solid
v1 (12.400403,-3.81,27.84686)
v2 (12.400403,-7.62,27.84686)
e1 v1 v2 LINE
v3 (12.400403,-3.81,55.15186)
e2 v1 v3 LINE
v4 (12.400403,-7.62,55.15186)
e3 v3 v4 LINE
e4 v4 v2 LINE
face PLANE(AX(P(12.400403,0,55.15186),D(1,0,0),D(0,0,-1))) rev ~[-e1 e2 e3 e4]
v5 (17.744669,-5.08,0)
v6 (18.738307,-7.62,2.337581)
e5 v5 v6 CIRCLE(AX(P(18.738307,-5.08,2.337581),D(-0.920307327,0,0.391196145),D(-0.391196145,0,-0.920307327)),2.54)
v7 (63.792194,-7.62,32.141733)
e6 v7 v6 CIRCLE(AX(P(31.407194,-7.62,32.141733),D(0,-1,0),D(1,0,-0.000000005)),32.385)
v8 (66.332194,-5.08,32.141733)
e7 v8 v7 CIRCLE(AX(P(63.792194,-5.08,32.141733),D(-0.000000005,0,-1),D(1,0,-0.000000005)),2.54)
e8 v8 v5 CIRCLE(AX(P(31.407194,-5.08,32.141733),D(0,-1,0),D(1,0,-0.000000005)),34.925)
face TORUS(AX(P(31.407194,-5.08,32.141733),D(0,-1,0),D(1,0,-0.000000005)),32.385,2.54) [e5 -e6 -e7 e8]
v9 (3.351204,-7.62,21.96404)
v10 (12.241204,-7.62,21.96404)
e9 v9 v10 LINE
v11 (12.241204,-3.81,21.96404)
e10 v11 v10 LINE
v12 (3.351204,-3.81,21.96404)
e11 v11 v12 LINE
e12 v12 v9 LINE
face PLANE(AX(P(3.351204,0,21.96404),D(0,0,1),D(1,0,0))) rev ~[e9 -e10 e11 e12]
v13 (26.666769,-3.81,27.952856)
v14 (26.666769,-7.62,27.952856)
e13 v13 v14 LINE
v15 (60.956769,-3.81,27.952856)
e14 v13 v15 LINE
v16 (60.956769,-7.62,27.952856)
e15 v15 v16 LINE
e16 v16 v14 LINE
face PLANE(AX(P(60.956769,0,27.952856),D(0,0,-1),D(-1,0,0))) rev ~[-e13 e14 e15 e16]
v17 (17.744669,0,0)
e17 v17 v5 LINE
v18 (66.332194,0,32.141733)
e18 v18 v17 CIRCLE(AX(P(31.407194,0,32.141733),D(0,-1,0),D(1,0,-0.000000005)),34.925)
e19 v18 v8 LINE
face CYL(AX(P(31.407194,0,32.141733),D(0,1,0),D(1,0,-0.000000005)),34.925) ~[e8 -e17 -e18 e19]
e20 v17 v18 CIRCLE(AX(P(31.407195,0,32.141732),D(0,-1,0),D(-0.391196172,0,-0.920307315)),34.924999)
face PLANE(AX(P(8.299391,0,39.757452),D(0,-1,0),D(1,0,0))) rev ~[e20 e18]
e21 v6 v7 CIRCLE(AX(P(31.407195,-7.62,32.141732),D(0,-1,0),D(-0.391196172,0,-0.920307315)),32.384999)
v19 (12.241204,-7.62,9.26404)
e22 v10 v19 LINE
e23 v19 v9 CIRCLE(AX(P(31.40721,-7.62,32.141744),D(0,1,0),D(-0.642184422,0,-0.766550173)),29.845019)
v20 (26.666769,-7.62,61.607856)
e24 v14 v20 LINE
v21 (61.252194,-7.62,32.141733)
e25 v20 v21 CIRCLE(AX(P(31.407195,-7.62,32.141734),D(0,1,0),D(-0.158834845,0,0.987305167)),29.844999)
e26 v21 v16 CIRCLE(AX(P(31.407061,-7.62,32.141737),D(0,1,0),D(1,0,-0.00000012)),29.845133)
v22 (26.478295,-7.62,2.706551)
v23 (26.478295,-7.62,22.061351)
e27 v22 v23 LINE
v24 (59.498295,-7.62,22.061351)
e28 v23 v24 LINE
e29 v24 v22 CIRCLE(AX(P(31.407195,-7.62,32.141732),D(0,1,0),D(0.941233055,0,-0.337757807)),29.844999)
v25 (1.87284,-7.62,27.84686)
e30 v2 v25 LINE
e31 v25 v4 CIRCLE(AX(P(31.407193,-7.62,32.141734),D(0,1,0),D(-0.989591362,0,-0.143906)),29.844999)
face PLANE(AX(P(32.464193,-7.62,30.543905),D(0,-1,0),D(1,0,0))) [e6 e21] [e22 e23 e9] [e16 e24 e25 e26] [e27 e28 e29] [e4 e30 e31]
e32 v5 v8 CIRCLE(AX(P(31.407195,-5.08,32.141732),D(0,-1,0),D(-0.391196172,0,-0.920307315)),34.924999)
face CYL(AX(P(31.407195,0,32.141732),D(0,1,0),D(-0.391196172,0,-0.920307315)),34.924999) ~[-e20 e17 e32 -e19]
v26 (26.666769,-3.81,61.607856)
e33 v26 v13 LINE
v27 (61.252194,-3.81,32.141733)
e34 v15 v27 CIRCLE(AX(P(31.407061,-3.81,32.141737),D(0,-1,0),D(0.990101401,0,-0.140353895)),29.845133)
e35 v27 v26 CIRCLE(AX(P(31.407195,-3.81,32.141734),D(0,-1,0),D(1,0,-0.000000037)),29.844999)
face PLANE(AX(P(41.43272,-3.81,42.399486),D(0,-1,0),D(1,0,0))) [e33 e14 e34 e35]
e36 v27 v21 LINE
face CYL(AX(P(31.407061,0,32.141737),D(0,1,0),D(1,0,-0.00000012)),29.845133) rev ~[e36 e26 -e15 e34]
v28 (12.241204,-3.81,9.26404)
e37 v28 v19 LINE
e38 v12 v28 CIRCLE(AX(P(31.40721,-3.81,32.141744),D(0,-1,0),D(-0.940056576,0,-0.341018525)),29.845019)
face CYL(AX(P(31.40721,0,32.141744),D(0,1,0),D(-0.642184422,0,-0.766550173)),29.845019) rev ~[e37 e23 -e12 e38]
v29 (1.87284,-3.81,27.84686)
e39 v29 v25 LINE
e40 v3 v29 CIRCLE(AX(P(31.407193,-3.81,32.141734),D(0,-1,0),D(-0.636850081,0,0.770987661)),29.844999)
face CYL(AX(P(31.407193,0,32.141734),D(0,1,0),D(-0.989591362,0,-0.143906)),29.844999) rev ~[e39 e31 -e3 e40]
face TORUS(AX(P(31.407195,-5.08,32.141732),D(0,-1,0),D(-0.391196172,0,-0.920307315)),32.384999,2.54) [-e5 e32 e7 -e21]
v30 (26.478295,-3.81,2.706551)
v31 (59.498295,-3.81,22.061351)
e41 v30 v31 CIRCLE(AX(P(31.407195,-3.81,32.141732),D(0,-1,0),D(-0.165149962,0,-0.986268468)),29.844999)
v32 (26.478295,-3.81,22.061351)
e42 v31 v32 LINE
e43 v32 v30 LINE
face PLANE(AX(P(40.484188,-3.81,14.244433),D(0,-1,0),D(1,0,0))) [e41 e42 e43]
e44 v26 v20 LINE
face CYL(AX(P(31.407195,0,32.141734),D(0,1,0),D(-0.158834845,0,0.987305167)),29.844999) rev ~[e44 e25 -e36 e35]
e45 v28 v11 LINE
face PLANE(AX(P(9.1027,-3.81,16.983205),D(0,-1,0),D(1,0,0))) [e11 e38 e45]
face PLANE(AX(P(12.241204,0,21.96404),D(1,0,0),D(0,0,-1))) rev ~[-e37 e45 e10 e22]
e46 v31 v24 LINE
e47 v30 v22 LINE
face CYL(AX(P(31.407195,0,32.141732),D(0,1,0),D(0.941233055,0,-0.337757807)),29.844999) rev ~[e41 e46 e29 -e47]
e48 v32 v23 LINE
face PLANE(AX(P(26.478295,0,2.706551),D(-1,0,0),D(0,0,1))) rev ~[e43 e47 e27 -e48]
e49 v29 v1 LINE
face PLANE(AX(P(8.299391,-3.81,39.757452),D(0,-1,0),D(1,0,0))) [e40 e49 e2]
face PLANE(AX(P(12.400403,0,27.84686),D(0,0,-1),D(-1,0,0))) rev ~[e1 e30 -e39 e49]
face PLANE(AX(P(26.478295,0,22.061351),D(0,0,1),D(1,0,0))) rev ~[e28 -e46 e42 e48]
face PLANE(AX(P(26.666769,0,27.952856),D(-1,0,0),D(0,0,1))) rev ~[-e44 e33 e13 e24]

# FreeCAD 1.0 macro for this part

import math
import FreeCAD as App
import Part
import Sketcher
from FreeCAD import Vector
Q = App.Units.Quantity


def edges_at(feature, points):
    """Names of the edges that pass closest to the given points."""
    edges = feature.Shape.Edges
    near = lambda p: min(range(len(edges)), key=lambda i: edges[i].distToShape(Part.Vertex(*p))[0])
    return sorted({f"Edge{near(p) + 1}" for p in points})

doc = App.newDocument("Part")
body = doc.addObject("PartDesign::Body", "Body")

# Sketch on XZ plane
sketch1 = body.newObject("Sketcher::SketchObject", "Sketch")
sketch1.AttachmentSupport = (doc.getObject("XZ_Plane"), [""])
sketch1.MapMode = "FlatFace"
sketch1.addGeometry([
    Part.ArcOfCircle(Part.Circle(Vector(31.4, 32.1, 0), Vector(0, 0, 1), 34.9), math.radians(-113), math.radians(0)),  # 0
    Part.ArcOfCircle(Part.Circle(Vector(31.4, 32.1, 0), Vector(0, 0, 1), 34.9), math.radians(0), math.radians(247)),  # 1
    Part.ArcOfCircle(Part.Circle(Vector(31.4, 32.1, 0), Vector(0, 0, 1), 29.8), math.radians(130), math.radians(188)),  # 2
    Part.LineSegment(Vector(12.4, 55.2, 0), Vector(12.4, 27.8, 0)),  # 3
    Part.LineSegment(Vector(12.4, 27.8, 0), Vector(1.9, 27.8, 0)),  # 4
    Part.ArcOfCircle(Part.Circle(Vector(31.4, 32.1, 0), Vector(0, 0, 1), 29.8), math.radians(-160), math.radians(-130)),  # 5
    Part.LineSegment(Vector(3.4, 22, 0), Vector(12.2, 22, 0)),  # 6
    Part.LineSegment(Vector(12.2, 22, 0), Vector(12.2, 9.3, 0)),  # 7
    Part.ArcOfCircle(Part.Circle(Vector(31.4, 32.1, 0), Vector(0, 0, 1), 29.8), math.radians(-100), math.radians(-20)),  # 8
    Part.LineSegment(Vector(26.5, 2.7, 0), Vector(26.5, 22.1, 0)),  # 9
    Part.LineSegment(Vector(26.5, 22.1, 0), Vector(59.5, 22.1, 0)),  # 10
    Part.ArcOfCircle(Part.Circle(Vector(31.4, 32.1, 0), Vector(0, 0, 1), 29.8), math.radians(-8.07), math.radians(0)),  # 11
    Part.LineSegment(Vector(61, 28, 0), Vector(26.7, 28, 0)),  # 12
    Part.LineSegment(Vector(26.7, 28, 0), Vector(26.7, 61.6, 0)),  # 13
    Part.ArcOfCircle(Part.Circle(Vector(31.4, 32.1, 0), Vector(0, 0, 1), 29.8), math.radians(0), math.radians(99)),  # 14
], False)
sketch1.addConstraint([
    Sketcher.Constraint("Tangent", 0, 1, 1, 2),
    Sketcher.Constraint("Coincident", 1, 1, 0, 2),
    Sketcher.Constraint("Coincident", 2, 1, 3, 1),
    Sketcher.Constraint("Coincident", 3, 2, 4, 1),
    Sketcher.Constraint("Coincident", 4, 2, 2, 2),
    Sketcher.Constraint("Coincident", 5, 1, 6, 1),
    Sketcher.Constraint("Coincident", 6, 2, 7, 1),
    Sketcher.Constraint("Coincident", 7, 2, 5, 2),
    Sketcher.Constraint("Coincident", 8, 1, 9, 1),
    Sketcher.Constraint("Coincident", 9, 2, 10, 1),
    Sketcher.Constraint("Coincident", 10, 2, 8, 2),
    Sketcher.Constraint("Coincident", 11, 1, 12, 1),
    Sketcher.Constraint("Coincident", 12, 2, 13, 1),
    Sketcher.Constraint("Coincident", 13, 2, 14, 2),
    Sketcher.Constraint("Tangent", 14, 1, 11, 2),
    Sketcher.Constraint("Vertical", 3),
    Sketcher.Constraint("Horizontal", 4),
    Sketcher.Constraint("Horizontal", 6),
    Sketcher.Constraint("Vertical", 7),
    Sketcher.Constraint("Vertical", 9),
    Sketcher.Constraint("Horizontal", 10),
    Sketcher.Constraint("Horizontal", 12),
    Sketcher.Constraint("Vertical", 13),
    Sketcher.Constraint("Coincident", 2, 3, 0, 3),
    Sketcher.Constraint("Coincident", 8, 3, 0, 3),
    Sketcher.Constraint("Coincident", 14, 3, 0, 3),
    Sketcher.Constraint("Equal", 2, 8),
    Sketcher.Constraint("Equal", 8, 14),
    Sketcher.Constraint("PointOnObject", 0, 1, -1),
    Sketcher.Constraint("Horizontal", 14, 3, 1, 1),
    Sketcher.Constraint("Horizontal", 1, 1, 14, 1),
    Sketcher.Constraint("DistanceX", 10, 1, 10, 2, Q("1.3 in")),
    Sketcher.Constraint("DistanceY", 7, 2, 7, 1, Q("0.5 in")),
    Sketcher.Constraint("Radius", 0, Q("1.375 in")),
    Sketcher.Constraint("Radius", 2, Q("1.1749999 in")),
    Sketcher.Constraint("DistanceX", 6, 1, 6, 2, Q("0.35 in")),
    Sketcher.Constraint("DistanceX", 12, 2, 12, 1, Q("1.35 in")),
    Sketcher.Constraint("DistanceY", 3, 2, 3, 1, Q("1.075 in")),
    Sketcher.Constraint("DistanceY", 9, 1, 9, 2, Q("0.762 in")),
    Sketcher.Constraint("DistanceY", 13, 1, 13, 2, Q("1.325 in")),
    Sketcher.Constraint("Radius", 5, 29.845019),
    Sketcher.Constraint("Radius", 11, 29.845133),
    Sketcher.Constraint("DistanceX", 5, 1, 3, 2, 9.049199),
    Sketcher.Constraint("DistanceX", 4, 2, 4, 1, 10.527563),
    Sketcher.Constraint("DistanceX", -1, 1, 5, 3, 31.40721),
    Sketcher.Constraint("DistanceX", -1, 1, 0, 1, 17.744669),
    Sketcher.Constraint("DistanceY", -1, 1, 5, 1, 21.96404),
])
pad1 = body.newObject("PartDesign::Pad", "Pad")
pad1.Profile = sketch1
pad1.Length = Q("0.3 in")

# Sketch on XZ plane
sketch2 = body.newObject("Sketcher::SketchObject", "Sketch001")
sketch2.AttachmentSupport = (doc.getObject("XZ_Plane"), [""])
sketch2.MapMode = "FlatFace"
sketch2.addGeometry([
    Part.LineSegment(Vector(12.4, 27.8, 0), Vector(12.4, 55.2, 0)),  # 0
    Part.ArcOfCircle(Part.Circle(Vector(31.4, 32.1, 0), Vector(0, 0, 1), 29.8), math.radians(130), math.radians(188)),  # 1
    Part.LineSegment(Vector(1.9, 27.8, 0), Vector(12.4, 27.8, 0)),  # 2
    Part.ArcOfCircle(Part.Circle(Vector(31.4, 32.1, 0), Vector(0, 0, 1), 29.8), math.radians(-8.07), math.radians(0)),  # 3
    Part.ArcOfCircle(Part.Circle(Vector(31.4, 32.1, 0), Vector(0, 0, 1), 29.8), math.radians(0), math.radians(99)),  # 4
    Part.LineSegment(Vector(26.7, 61.6, 0), Vector(26.7, 28, 0)),  # 5
    Part.LineSegment(Vector(26.7, 28, 0), Vector(61, 28, 0)),  # 6
    Part.ArcOfCircle(Part.Circle(Vector(31.4, 32.1, 0), Vector(0, 0, 1), 29.8), math.radians(-100), math.radians(-20)),  # 7
    Part.LineSegment(Vector(59.5, 22.1, 0), Vector(26.5, 22.1, 0)),  # 8
    Part.LineSegment(Vector(26.5, 22.1, 0), Vector(26.5, 2.7, 0)),  # 9
    Part.LineSegment(Vector(12.2, 22, 0), Vector(3.4, 22, 0)),  # 10
    Part.ArcOfCircle(Part.Circle(Vector(31.4, 32.1, 0), Vector(0, 0, 1), 29.8), math.radians(-160), math.radians(-130)),  # 11
    Part.LineSegment(Vector(12.2, 9.3, 0), Vector(12.2, 22, 0)),  # 12
], False)
sketch2.addConstraint([
    Sketcher.Constraint("Coincident", 0, 2, 1, 1),
    Sketcher.Constraint("Coincident", 1, 2, 2, 1),
    Sketcher.Constraint("Coincident", 2, 2, 0, 1),
    Sketcher.Constraint("Tangent", 3, 2, 4, 1),
    Sketcher.Constraint("Coincident", 4, 2, 5, 1),
    Sketcher.Constraint("Coincident", 5, 2, 6, 1),
    Sketcher.Constraint("Coincident", 6, 2, 3, 1),
    Sketcher.Constraint("Coincident", 7, 2, 8, 1),
    Sketcher.Constraint("Coincident", 8, 2, 9, 1),
    Sketcher.Constraint("Coincident", 9, 2, 7, 1),
    Sketcher.Constraint("Coincident", 10, 2, 11, 1),
    Sketcher.Constraint("Coincident", 11, 2, 12, 1),
    Sketcher.Constraint("Coincident", 12, 2, 10, 1),
    Sketcher.Constraint("Vertical", 0),
    Sketcher.Constraint("Horizontal", 2),
    Sketcher.Constraint("Vertical", 5),
    Sketcher.Constraint("Horizontal", 6),
    Sketcher.Constraint("Horizontal", 8),
    Sketcher.Constraint("Vertical", 9),
    Sketcher.Constraint("Horizontal", 10),
    Sketcher.Constraint("Vertical", 12),
    Sketcher.Constraint("Coincident", 4, 3, 1, 3),
    Sketcher.Constraint("Coincident", 7, 3, 1, 3),
    Sketcher.Constraint("Equal", 1, 4),
    Sketcher.Constraint("Equal", 4, 7),
    Sketcher.Constraint("Horizontal", 7, 3, 3, 2),
    Sketcher.Constraint("DistanceX", 8, 2, 8, 1, Q("1.3 in")),
    Sketcher.Constraint("DistanceY", 12, 1, 12, 2, Q("0.5 in")),
    Sketcher.Constraint("Radius", 1, Q("1.1749999 in")),
    Sketcher.Constraint("DistanceX", 6, 1, 6, 2, Q("1.35 in")),
    Sketcher.Constraint("DistanceX", 10, 2, 10, 1, Q("0.35 in")),
    Sketcher.Constraint("DistanceY", 0, 1, 0, 2, Q("1.075 in")),
    Sketcher.Constraint("DistanceY", 5, 2, 5, 1, Q("1.325 in")),
    Sketcher.Constraint("DistanceY", 9, 2, 9, 1, Q("0.762 in")),
    Sketcher.Constraint("Radius", 11, 29.845019),
    Sketcher.Constraint("Radius", 3, 29.845133),
    Sketcher.Constraint("DistanceX", 10, 2, 2, 2, 9.049199),
    Sketcher.Constraint("DistanceX", 2, 1, 2, 2, 10.527563),
    Sketcher.Constraint("DistanceX", -1, 1, 3, 3, 31.407061),
    Sketcher.Constraint("DistanceY", -1, 1, 0, 2, 55.15186),
    Sketcher.Constraint("DistanceY", -1, 1, 10, 2, 21.96404),
])
pad2 = body.newObject("PartDesign::Pad", "Pad001")
pad2.Profile = sketch2
pad2.Length = Q("0.15 in")
doc.recompute()

fillet = body.newObject("PartDesign::Fillet", "Fillet")
fillet.Base = (pad2, edges_at(pad2, [(12.138, -7.62, 61.27)]))
fillet.Radius = Q("0.1 in")

doc.recompute()
